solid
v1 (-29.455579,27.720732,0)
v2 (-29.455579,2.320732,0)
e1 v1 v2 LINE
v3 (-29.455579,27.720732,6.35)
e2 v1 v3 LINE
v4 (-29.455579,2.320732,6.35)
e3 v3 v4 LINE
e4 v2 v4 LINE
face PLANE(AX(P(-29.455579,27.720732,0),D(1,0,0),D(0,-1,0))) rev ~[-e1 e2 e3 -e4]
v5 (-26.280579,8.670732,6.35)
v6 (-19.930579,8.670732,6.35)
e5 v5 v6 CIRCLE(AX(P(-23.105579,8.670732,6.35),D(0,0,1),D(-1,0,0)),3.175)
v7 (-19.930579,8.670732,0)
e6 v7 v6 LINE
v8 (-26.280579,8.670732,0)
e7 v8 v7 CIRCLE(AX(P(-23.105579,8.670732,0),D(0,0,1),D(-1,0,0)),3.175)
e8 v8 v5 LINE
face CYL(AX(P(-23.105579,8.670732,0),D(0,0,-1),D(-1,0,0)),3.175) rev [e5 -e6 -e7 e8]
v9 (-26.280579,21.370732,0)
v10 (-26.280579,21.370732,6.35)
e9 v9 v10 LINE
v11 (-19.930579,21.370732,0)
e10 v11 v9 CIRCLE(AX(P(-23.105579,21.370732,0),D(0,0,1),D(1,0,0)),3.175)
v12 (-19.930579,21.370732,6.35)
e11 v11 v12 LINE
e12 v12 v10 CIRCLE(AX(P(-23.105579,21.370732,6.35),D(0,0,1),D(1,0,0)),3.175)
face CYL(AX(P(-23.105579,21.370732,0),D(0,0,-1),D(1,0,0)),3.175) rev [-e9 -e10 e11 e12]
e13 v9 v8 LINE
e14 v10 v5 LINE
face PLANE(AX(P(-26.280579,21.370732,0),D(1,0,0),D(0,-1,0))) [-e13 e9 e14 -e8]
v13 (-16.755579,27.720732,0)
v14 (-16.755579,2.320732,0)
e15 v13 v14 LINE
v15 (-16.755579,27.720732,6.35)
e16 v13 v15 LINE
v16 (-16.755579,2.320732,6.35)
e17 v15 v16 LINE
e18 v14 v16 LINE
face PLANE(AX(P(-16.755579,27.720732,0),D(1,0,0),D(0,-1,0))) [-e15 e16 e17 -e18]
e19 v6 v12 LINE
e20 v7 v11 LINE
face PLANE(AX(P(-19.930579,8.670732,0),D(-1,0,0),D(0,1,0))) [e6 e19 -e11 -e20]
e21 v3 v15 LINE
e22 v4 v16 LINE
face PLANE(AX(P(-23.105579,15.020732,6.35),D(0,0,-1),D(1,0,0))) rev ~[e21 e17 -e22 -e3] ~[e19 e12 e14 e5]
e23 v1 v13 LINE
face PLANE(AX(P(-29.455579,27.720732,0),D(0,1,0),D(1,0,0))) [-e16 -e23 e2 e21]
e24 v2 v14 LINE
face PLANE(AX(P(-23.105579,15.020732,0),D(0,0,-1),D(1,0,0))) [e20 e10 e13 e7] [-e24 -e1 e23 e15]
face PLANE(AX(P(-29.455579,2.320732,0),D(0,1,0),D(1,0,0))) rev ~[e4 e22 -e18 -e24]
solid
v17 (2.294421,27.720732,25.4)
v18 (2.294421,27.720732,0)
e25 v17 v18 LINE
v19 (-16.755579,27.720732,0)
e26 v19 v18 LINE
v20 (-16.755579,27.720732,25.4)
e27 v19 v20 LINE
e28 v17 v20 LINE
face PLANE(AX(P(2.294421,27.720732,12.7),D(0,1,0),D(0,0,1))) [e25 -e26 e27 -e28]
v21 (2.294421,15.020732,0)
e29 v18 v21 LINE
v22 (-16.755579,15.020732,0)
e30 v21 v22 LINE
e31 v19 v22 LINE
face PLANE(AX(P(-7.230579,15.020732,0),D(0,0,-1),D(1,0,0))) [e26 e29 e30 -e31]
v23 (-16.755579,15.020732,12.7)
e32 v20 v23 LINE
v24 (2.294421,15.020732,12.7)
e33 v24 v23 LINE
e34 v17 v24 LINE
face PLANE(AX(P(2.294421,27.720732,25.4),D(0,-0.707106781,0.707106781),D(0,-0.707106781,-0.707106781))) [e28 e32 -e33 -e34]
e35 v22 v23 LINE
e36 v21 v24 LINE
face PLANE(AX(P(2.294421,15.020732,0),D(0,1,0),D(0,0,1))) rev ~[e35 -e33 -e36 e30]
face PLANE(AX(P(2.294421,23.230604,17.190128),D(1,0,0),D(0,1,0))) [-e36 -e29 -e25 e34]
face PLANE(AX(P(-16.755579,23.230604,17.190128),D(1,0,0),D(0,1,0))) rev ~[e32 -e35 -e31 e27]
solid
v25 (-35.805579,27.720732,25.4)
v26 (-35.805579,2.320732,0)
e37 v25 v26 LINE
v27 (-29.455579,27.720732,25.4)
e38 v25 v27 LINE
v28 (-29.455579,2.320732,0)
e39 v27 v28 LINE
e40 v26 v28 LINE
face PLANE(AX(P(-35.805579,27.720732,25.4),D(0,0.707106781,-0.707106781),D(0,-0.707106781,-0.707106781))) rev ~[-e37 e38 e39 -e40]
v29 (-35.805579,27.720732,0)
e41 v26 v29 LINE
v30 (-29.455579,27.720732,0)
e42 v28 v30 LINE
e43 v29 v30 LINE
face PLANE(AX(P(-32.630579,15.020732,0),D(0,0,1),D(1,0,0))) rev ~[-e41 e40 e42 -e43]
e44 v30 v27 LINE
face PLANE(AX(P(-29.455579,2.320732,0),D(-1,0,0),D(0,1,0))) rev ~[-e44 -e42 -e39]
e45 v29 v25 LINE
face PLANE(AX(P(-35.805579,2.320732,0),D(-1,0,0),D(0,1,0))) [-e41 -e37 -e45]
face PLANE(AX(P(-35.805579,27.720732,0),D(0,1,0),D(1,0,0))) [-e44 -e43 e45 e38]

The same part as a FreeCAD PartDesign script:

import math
import FreeCAD as App
import Part
import Sketcher
Q = App.Units.Quantity


def add_polygon(sketch, points):
    """Adds a closed chain of lines whose ends are joined by coincident constraints."""
    first, n = sketch.GeometryCount, len(points)
    for a, b in zip(points, points[1:] + points[:1]):
        sketch.addGeometry(Part.LineSegment(App.Vector(*a, 0), App.Vector(*b, 0)), False)
    for i in range(n):
        sketch.addConstraint(Sketcher.Constraint("Coincident", first + i, 2, first + (i + 1) % n, 1))

doc = App.newDocument("Part")
params = doc.addObject("Spreadsheet::Sheet", "Params")
for row, (alias, value) in enumerate([
    ("sketch1_height", "1 in"),
    ("sketch1_width", "0.25 in"),
    ("pad1_length", "1 in"),
    ("sketch2_width", "1 in"),
    ("pocket1_length", "0.25 in"),
    ("sketch3_height", "1 in"),
    ("sketch3_width", "0.5 in"),
    ("sketch3_radius", "0.125 in"),
    ("pad2_length", "0.25 in"),
    ("sketch4_height", "1 in"),
    ("sketch4_width", "0.75 in"),
    ("pad3_length", "0.5 in"),
    ("sketch5_width", "0.5 in"),
    ("pocket2_length", "1 in"),
    ("sketch6_width", "0.5 in"),
    ("pad4_length", "0.75 in"),
], start=1):
    params.set(f"A{row}", alias)
    params.set(f"B{row}", "=" + value)
    params.setAlias(f"B{row}", alias)

body = doc.addObject("PartDesign::Body", "Body")

sketch1 = body.newObject("Sketcher::SketchObject", "Sketch")
sketch1.AttachmentSupport = (doc.getObject("XY_Plane"), [""])
sketch1.MapMode = "FlatFace"
add_polygon(sketch1, [(-35.805579, 27.720732), (-35.805579, 2.320732), (-29.455579, 2.320732), (-29.455579, 27.720732)])
sketch1.addConstraint(Sketcher.Constraint("Vertical", 0))
sketch1.addConstraint(Sketcher.Constraint("Horizontal", 1))
sketch1.addConstraint(Sketcher.Constraint("Vertical", 2))
sketch1.addConstraint(Sketcher.Constraint("Horizontal", 3))
sketch1.addConstraint(Sketcher.Constraint("DistanceY", 0, 2, 0, 1, Q("1 in")))
sketch1.addConstraint(Sketcher.Constraint("DistanceX", 1, 1, 1, 2, Q("0.25 in")))
sketch1.addConstraint(Sketcher.Constraint("DistanceX", 0, 2, -1, 1, Q("35.805579 mm")))
sketch1.addConstraint(Sketcher.Constraint("DistanceY", -1, 1, 0, 2, Q("2.320732 mm")))
sketch1.setExpression("Constraints[8]", "Params.sketch1_height")
sketch1.setExpression("Constraints[9]", "Params.sketch1_width")
pad1 = body.newObject("PartDesign::Pad", "Pad")
pad1.Profile = sketch1
pad1.setExpression("Length", "Params.pad1_length")

sketch2 = body.newObject("Sketcher::SketchObject", "Sketch001")
sketch2.AttachmentSupport = (doc.getObject("YZ_Plane"), [""])
sketch2.MapMode = "FlatFace"
sketch2.AttachmentOffset = App.Placement(App.Vector(0, 0, -35.805579), App.Rotation())
add_polygon(sketch2, [(27.720732, 25.4), (2.320732, 0), (2.320732, 25.4)])
sketch2.addConstraint(Sketcher.Constraint("Vertical", 1))
sketch2.addConstraint(Sketcher.Constraint("Horizontal", 2))
sketch2.addConstraint(Sketcher.Constraint("PointOnObject", 0, 2, -1))
sketch2.addConstraint(Sketcher.Constraint("Equal", 2, 1))
sketch2.addConstraint(Sketcher.Constraint("DistanceX", 2, 1, 2, 2, Q("1 in")))
sketch2.addConstraint(Sketcher.Constraint("DistanceX", -1, 1, 0, 2, Q("2.320732 mm")))
sketch2.setExpression("Constraints[7]", "Params.sketch2_width")
pocket1 = body.newObject("PartDesign::Pocket", "Pocket")
pocket1.Profile = sketch2
pocket1.setExpression("Length", "Params.pocket1_length")
pocket1.Reversed = True
body2 = doc.addObject("PartDesign::Body", "Body001")

sketch3 = body2.newObject("Sketcher::SketchObject", "Sketch002")
sketch3.AttachmentSupport = (doc.getObject("XY_Plane001"), [""])
sketch3.MapMode = "FlatFace"
add_polygon(sketch3, [(-29.455579, 2.320732), (-29.455579, 27.720732), (-16.755579, 27.720732), (-16.755579, 2.320732)])
sketch3.addGeometry(Part.ArcOfCircle(Part.Circle(App.Vector(-23.105579, 8.670732, 0), App.Vector(0, 0, 1), 3.175), math.radians(180), math.radians(360)), False)
sketch3.addGeometry(Part.LineSegment(App.Vector(-19.930579, 8.670732, 0), App.Vector(-19.930579, 21.370732, 0)), False)
sketch3.addGeometry(Part.ArcOfCircle(Part.Circle(App.Vector(-23.105579, 21.370732, 0), App.Vector(0, 0, 1), 3.175), math.radians(0), math.radians(180)), False)
sketch3.addGeometry(Part.LineSegment(App.Vector(-26.280579, 21.370732, 0), App.Vector(-26.280579, 8.670732, 0)), False)
sketch3.addConstraint(Sketcher.Constraint("Tangent", 4, 2, 5, 1))
sketch3.addConstraint(Sketcher.Constraint("Tangent", 5, 2, 6, 1))
sketch3.addConstraint(Sketcher.Constraint("Tangent", 6, 2, 7, 1))
sketch3.addConstraint(Sketcher.Constraint("Tangent", 7, 2, 4, 1))
sketch3.addConstraint(Sketcher.Constraint("Vertical", 0))
sketch3.addConstraint(Sketcher.Constraint("Horizontal", 1))
sketch3.addConstraint(Sketcher.Constraint("Vertical", 2))
sketch3.addConstraint(Sketcher.Constraint("Horizontal", 3))
sketch3.addConstraint(Sketcher.Constraint("Vertical", 5))
sketch3.addConstraint(Sketcher.Constraint("Vertical", 7))
sketch3.addConstraint(Sketcher.Constraint("Equal", 3, 5))
sketch3.addConstraint(Sketcher.Constraint("DistanceY", 0, 1, 0, 2, Q("1 in")))
sketch3.addConstraint(Sketcher.Constraint("DistanceX", 1, 1, 1, 2, Q("0.5 in")))
sketch3.addConstraint(Sketcher.Constraint("Radius", 4, Q("0.125 in")))
sketch3.addConstraint(Sketcher.Constraint("DistanceX", 0, 2, 6, 3, Q("0.25 in")))
sketch3.addConstraint(Sketcher.Constraint("DistanceY", 6, 3, 0, 2, Q("0.25 in")))
sketch3.addConstraint(Sketcher.Constraint("DistanceX", 4, 3, -1, 1, Q("23.105579 mm")))
sketch3.addConstraint(Sketcher.Constraint("DistanceY", -1, 1, 4, 3, Q("8.670732 mm")))
sketch3.setExpression("Constraints[15]", "Params.sketch3_height")
sketch3.setExpression("Constraints[16]", "Params.sketch3_width")
sketch3.setExpression("Constraints[17]", "Params.sketch3_radius")
pad2 = body2.newObject("PartDesign::Pad", "Pad001")
pad2.Profile = sketch3
pad2.setExpression("Length", "Params.pad2_length")
body3 = doc.addObject("PartDesign::Body", "Body002")

sketch4 = body3.newObject("Sketcher::SketchObject", "Sketch003")
sketch4.AttachmentSupport = (doc.getObject("XY_Plane002"), [""])
sketch4.MapMode = "FlatFace"
add_polygon(sketch4, [(-16.755579, 2.320732), (-16.755579, 27.720732), (2.294421, 27.720732), (2.294421, 2.320732)])
sketch4.addConstraint(Sketcher.Constraint("Vertical", 0))
sketch4.addConstraint(Sketcher.Constraint("Horizontal", 1))
sketch4.addConstraint(Sketcher.Constraint("Vertical", 2))
sketch4.addConstraint(Sketcher.Constraint("Horizontal", 3))
sketch4.addConstraint(Sketcher.Constraint("DistanceY", 0, 1, 0, 2, Q("1 in")))
sketch4.addConstraint(Sketcher.Constraint("DistanceX", 1, 1, 1, 2, Q("0.75 in")))
sketch4.addConstraint(Sketcher.Constraint("DistanceX", 0, 2, -1, 1, Q("16.755579 mm")))
sketch4.addConstraint(Sketcher.Constraint("DistanceY", -1, 1, 0, 2, Q("27.720732 mm")))
sketch4.setExpression("Constraints[8]", "Params.sketch4_height")
sketch4.setExpression("Constraints[9]", "Params.sketch4_width")
pad3 = body3.newObject("PartDesign::Pad", "Pad002")
pad3.Profile = sketch4
pad3.setExpression("Length", "Params.pad3_length")

sketch5 = body3.newObject("Sketcher::SketchObject", "Sketch004")
sketch5.AttachmentSupport = (doc.getObject("YZ_Plane002"), [""])
sketch5.MapMode = "FlatFace"
sketch5.AttachmentOffset = App.Placement(App.Vector(0, 0, 2.294421), App.Rotation())
add_polygon(sketch5, [(2.320732, 12.7), (2.320732, 0), (15.020732, 0), (15.020732, 12.7)])
sketch5.addConstraint(Sketcher.Constraint("Vertical", 0))
sketch5.addConstraint(Sketcher.Constraint("Horizontal", 1))
sketch5.addConstraint(Sketcher.Constraint("Vertical", 2))
sketch5.addConstraint(Sketcher.Constraint("Horizontal", 3))
sketch5.addConstraint(Sketcher.Constraint("PointOnObject", 0, 2, -1))
sketch5.addConstraint(Sketcher.Constraint("Equal", 3, 0))
sketch5.addConstraint(Sketcher.Constraint("DistanceX", 1, 1, 1, 2, Q("0.5 in")))
sketch5.addConstraint(Sketcher.Constraint("DistanceX", -1, 1, 0, 2, Q("2.320732 mm")))
sketch5.setExpression("Constraints[10]", "Params.sketch5_width")
pocket2 = body3.newObject("PartDesign::Pocket", "Pocket001")
pocket2.Profile = sketch5
pocket2.setExpression("Length", "Params.pocket2_length")

sketch6 = body3.newObject("Sketcher::SketchObject", "Sketch005")
sketch6.AttachmentSupport = (doc.getObject("YZ_Plane002"), [""])
sketch6.MapMode = "FlatFace"
sketch6.AttachmentOffset = App.Placement(App.Vector(0, 0, 2.294421), App.Rotation())
add_polygon(sketch6, [(27.720732, 25.4), (15.020732, 12.7), (27.720732, 12.7)])
sketch6.addConstraint(Sketcher.Constraint("Horizontal", 1))
sketch6.addConstraint(Sketcher.Constraint("Vertical", 2))
sketch6.addConstraint(Sketcher.Constraint("Equal", 1, 2))
sketch6.addConstraint(Sketcher.Constraint("DistanceX", 1, 1, 1, 2, Q("0.5 in")))
sketch6.addConstraint(Sketcher.Constraint("DistanceY", -1, 1, 2, 2, Q("1 in")))
sketch6.addConstraint(Sketcher.Constraint("DistanceX", -1, 1, 0, 2, Q("15.020732 mm")))
sketch6.setExpression("Constraints[6]", "Params.sketch6_width")
pad4 = body3.newObject("PartDesign::Pad", "Pad003")
pad4.Profile = sketch6
pad4.setExpression("Length", "Params.pad4_length")
pad4.Reversed = True

doc.recompute()
